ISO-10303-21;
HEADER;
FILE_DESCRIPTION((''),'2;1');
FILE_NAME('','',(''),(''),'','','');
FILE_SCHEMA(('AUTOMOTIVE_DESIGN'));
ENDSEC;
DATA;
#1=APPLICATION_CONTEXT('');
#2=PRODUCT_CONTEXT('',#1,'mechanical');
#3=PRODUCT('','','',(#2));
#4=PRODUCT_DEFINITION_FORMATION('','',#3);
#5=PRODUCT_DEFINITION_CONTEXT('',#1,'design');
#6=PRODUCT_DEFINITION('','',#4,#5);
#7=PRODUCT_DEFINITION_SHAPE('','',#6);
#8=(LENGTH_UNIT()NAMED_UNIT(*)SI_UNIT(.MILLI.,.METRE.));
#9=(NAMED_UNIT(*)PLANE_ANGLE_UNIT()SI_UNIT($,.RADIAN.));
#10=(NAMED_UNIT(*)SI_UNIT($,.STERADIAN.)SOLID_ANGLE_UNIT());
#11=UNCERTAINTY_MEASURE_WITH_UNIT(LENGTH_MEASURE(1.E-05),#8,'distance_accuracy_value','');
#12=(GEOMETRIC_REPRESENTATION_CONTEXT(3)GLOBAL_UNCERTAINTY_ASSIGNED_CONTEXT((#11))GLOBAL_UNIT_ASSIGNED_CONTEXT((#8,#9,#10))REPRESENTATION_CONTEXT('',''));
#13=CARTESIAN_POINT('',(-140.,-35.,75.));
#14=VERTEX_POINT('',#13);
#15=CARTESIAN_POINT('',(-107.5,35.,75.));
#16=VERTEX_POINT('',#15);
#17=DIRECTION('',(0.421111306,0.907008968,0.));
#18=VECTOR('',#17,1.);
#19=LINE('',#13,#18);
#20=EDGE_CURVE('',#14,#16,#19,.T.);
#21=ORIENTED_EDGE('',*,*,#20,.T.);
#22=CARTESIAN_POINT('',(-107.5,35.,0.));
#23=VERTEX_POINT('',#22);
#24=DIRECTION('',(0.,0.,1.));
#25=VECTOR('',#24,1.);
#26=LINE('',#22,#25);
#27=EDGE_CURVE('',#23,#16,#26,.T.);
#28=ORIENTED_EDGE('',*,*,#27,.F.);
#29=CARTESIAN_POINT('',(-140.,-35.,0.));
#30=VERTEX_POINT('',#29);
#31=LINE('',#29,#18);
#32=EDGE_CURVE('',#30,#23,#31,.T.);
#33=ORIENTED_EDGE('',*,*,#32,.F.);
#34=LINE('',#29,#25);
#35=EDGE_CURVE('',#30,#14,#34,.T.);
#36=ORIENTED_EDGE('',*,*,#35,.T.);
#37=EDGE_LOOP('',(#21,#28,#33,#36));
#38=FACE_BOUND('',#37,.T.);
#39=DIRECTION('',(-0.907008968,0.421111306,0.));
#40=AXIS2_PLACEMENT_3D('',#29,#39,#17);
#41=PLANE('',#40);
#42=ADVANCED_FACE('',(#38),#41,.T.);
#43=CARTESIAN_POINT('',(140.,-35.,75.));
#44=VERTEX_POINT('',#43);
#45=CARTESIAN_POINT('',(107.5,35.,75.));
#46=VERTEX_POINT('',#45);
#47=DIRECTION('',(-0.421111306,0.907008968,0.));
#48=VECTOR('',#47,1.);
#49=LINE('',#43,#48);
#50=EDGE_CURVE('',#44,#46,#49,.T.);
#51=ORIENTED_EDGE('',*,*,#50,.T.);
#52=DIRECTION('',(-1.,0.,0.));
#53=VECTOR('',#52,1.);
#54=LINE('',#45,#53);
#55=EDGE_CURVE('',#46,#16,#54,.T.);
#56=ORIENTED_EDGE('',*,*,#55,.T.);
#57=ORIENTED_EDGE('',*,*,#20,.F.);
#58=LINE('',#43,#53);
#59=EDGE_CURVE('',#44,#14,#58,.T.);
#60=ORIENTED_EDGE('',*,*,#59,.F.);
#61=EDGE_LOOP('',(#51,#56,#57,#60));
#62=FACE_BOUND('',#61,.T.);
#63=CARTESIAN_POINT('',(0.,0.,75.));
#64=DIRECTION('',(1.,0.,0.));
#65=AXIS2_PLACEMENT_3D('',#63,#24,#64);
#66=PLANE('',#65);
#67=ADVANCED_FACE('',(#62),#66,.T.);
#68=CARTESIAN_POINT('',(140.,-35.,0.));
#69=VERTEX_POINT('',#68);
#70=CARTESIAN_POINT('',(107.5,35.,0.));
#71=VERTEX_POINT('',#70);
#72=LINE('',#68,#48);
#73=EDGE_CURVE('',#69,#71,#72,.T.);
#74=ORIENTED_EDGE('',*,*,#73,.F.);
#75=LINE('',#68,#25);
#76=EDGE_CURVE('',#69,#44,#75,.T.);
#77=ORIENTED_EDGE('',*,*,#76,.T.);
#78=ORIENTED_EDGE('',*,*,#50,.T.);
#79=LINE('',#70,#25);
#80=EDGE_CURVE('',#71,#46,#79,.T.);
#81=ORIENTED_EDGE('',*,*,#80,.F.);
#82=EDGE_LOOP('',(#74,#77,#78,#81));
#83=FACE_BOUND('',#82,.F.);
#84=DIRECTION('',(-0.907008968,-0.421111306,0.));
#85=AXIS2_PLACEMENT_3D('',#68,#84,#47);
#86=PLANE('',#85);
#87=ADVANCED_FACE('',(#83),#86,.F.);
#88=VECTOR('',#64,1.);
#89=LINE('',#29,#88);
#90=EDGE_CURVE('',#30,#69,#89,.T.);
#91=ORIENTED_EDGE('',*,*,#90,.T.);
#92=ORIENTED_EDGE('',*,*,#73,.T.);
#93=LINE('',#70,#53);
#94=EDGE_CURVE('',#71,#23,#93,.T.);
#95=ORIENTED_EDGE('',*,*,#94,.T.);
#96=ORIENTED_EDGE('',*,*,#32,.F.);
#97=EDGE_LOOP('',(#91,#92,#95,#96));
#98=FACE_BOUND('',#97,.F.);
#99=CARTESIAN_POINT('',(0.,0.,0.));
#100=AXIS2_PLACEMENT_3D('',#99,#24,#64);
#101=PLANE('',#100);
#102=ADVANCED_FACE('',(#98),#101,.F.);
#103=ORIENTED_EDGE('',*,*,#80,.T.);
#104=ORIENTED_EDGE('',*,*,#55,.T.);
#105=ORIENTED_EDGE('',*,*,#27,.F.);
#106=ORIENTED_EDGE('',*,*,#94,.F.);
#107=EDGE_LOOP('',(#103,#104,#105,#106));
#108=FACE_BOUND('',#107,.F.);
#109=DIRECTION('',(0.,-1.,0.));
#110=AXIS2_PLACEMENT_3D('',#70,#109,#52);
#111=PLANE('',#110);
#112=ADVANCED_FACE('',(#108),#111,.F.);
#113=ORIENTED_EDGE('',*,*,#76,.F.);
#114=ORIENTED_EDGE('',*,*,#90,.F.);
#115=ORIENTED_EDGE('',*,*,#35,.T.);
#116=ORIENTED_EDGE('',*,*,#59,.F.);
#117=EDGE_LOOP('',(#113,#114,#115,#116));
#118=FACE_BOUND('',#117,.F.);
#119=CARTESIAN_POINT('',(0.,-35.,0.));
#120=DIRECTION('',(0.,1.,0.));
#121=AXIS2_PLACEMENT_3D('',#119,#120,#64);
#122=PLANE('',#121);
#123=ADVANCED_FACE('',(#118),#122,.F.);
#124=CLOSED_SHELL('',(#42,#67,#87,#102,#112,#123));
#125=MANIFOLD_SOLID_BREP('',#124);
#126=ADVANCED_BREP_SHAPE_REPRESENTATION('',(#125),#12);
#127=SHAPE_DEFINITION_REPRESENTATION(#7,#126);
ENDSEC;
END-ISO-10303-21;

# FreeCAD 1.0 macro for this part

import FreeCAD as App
import Part
import Sketcher

doc = App.newDocument("Part")
body = doc.addObject("PartDesign::Body", "Body")

# Sketch on XY plane
sketch1 = body.newObject("Sketcher::SketchObject", "Sketch")
sketch1.AttachmentSupport = (doc.getObject("XY_Plane"), [""])
sketch1.MapMode = "FlatFace"
sketch1.addGeometry([
    Part.LineSegment(App.Vector(140, -35, 0), App.Vector(107.5, 35, 0)),
    Part.LineSegment(App.Vector(107.5, 35, 0), App.Vector(-107.5, 35, 0)),
    Part.LineSegment(App.Vector(-107.5, 35, 0), App.Vector(-140, -35, 0)),
    Part.LineSegment(App.Vector(-140, -35, 0), App.Vector(140, -35, 0)),
], False)
sketch1.addConstraint([
    Sketcher.Constraint("Coincident", 0, 2, 1, 1),
    Sketcher.Constraint("Coincident", 1, 2, 2, 1),
    Sketcher.Constraint("Coincident", 2, 2, 3, 1),
    Sketcher.Constraint("Coincident", 3, 2, 0, 1),
    Sketcher.Constraint("Horizontal", 1),
    Sketcher.Constraint("Horizontal", 3),
    Sketcher.Constraint("Equal", 0, 2),
    Sketcher.Constraint("DistanceX", 1, 2, 1, 1, 215.0),
    Sketcher.Constraint("DistanceX", 2, 2, -1, 1, 140.0),
    Sketcher.Constraint("DistanceX", -1, 1, 3, 2, 140.0),
    Sketcher.Constraint("DistanceY", 2, 2, 1, 2, 70.0),
    Sketcher.Constraint("DistanceY", -1, 1, 0, 2, 35.0),
])
pad1 = body.newObject("PartDesign::Pad", "Pad")
pad1.Profile = sketch1
pad1.Length = 75

doc.recompute()
